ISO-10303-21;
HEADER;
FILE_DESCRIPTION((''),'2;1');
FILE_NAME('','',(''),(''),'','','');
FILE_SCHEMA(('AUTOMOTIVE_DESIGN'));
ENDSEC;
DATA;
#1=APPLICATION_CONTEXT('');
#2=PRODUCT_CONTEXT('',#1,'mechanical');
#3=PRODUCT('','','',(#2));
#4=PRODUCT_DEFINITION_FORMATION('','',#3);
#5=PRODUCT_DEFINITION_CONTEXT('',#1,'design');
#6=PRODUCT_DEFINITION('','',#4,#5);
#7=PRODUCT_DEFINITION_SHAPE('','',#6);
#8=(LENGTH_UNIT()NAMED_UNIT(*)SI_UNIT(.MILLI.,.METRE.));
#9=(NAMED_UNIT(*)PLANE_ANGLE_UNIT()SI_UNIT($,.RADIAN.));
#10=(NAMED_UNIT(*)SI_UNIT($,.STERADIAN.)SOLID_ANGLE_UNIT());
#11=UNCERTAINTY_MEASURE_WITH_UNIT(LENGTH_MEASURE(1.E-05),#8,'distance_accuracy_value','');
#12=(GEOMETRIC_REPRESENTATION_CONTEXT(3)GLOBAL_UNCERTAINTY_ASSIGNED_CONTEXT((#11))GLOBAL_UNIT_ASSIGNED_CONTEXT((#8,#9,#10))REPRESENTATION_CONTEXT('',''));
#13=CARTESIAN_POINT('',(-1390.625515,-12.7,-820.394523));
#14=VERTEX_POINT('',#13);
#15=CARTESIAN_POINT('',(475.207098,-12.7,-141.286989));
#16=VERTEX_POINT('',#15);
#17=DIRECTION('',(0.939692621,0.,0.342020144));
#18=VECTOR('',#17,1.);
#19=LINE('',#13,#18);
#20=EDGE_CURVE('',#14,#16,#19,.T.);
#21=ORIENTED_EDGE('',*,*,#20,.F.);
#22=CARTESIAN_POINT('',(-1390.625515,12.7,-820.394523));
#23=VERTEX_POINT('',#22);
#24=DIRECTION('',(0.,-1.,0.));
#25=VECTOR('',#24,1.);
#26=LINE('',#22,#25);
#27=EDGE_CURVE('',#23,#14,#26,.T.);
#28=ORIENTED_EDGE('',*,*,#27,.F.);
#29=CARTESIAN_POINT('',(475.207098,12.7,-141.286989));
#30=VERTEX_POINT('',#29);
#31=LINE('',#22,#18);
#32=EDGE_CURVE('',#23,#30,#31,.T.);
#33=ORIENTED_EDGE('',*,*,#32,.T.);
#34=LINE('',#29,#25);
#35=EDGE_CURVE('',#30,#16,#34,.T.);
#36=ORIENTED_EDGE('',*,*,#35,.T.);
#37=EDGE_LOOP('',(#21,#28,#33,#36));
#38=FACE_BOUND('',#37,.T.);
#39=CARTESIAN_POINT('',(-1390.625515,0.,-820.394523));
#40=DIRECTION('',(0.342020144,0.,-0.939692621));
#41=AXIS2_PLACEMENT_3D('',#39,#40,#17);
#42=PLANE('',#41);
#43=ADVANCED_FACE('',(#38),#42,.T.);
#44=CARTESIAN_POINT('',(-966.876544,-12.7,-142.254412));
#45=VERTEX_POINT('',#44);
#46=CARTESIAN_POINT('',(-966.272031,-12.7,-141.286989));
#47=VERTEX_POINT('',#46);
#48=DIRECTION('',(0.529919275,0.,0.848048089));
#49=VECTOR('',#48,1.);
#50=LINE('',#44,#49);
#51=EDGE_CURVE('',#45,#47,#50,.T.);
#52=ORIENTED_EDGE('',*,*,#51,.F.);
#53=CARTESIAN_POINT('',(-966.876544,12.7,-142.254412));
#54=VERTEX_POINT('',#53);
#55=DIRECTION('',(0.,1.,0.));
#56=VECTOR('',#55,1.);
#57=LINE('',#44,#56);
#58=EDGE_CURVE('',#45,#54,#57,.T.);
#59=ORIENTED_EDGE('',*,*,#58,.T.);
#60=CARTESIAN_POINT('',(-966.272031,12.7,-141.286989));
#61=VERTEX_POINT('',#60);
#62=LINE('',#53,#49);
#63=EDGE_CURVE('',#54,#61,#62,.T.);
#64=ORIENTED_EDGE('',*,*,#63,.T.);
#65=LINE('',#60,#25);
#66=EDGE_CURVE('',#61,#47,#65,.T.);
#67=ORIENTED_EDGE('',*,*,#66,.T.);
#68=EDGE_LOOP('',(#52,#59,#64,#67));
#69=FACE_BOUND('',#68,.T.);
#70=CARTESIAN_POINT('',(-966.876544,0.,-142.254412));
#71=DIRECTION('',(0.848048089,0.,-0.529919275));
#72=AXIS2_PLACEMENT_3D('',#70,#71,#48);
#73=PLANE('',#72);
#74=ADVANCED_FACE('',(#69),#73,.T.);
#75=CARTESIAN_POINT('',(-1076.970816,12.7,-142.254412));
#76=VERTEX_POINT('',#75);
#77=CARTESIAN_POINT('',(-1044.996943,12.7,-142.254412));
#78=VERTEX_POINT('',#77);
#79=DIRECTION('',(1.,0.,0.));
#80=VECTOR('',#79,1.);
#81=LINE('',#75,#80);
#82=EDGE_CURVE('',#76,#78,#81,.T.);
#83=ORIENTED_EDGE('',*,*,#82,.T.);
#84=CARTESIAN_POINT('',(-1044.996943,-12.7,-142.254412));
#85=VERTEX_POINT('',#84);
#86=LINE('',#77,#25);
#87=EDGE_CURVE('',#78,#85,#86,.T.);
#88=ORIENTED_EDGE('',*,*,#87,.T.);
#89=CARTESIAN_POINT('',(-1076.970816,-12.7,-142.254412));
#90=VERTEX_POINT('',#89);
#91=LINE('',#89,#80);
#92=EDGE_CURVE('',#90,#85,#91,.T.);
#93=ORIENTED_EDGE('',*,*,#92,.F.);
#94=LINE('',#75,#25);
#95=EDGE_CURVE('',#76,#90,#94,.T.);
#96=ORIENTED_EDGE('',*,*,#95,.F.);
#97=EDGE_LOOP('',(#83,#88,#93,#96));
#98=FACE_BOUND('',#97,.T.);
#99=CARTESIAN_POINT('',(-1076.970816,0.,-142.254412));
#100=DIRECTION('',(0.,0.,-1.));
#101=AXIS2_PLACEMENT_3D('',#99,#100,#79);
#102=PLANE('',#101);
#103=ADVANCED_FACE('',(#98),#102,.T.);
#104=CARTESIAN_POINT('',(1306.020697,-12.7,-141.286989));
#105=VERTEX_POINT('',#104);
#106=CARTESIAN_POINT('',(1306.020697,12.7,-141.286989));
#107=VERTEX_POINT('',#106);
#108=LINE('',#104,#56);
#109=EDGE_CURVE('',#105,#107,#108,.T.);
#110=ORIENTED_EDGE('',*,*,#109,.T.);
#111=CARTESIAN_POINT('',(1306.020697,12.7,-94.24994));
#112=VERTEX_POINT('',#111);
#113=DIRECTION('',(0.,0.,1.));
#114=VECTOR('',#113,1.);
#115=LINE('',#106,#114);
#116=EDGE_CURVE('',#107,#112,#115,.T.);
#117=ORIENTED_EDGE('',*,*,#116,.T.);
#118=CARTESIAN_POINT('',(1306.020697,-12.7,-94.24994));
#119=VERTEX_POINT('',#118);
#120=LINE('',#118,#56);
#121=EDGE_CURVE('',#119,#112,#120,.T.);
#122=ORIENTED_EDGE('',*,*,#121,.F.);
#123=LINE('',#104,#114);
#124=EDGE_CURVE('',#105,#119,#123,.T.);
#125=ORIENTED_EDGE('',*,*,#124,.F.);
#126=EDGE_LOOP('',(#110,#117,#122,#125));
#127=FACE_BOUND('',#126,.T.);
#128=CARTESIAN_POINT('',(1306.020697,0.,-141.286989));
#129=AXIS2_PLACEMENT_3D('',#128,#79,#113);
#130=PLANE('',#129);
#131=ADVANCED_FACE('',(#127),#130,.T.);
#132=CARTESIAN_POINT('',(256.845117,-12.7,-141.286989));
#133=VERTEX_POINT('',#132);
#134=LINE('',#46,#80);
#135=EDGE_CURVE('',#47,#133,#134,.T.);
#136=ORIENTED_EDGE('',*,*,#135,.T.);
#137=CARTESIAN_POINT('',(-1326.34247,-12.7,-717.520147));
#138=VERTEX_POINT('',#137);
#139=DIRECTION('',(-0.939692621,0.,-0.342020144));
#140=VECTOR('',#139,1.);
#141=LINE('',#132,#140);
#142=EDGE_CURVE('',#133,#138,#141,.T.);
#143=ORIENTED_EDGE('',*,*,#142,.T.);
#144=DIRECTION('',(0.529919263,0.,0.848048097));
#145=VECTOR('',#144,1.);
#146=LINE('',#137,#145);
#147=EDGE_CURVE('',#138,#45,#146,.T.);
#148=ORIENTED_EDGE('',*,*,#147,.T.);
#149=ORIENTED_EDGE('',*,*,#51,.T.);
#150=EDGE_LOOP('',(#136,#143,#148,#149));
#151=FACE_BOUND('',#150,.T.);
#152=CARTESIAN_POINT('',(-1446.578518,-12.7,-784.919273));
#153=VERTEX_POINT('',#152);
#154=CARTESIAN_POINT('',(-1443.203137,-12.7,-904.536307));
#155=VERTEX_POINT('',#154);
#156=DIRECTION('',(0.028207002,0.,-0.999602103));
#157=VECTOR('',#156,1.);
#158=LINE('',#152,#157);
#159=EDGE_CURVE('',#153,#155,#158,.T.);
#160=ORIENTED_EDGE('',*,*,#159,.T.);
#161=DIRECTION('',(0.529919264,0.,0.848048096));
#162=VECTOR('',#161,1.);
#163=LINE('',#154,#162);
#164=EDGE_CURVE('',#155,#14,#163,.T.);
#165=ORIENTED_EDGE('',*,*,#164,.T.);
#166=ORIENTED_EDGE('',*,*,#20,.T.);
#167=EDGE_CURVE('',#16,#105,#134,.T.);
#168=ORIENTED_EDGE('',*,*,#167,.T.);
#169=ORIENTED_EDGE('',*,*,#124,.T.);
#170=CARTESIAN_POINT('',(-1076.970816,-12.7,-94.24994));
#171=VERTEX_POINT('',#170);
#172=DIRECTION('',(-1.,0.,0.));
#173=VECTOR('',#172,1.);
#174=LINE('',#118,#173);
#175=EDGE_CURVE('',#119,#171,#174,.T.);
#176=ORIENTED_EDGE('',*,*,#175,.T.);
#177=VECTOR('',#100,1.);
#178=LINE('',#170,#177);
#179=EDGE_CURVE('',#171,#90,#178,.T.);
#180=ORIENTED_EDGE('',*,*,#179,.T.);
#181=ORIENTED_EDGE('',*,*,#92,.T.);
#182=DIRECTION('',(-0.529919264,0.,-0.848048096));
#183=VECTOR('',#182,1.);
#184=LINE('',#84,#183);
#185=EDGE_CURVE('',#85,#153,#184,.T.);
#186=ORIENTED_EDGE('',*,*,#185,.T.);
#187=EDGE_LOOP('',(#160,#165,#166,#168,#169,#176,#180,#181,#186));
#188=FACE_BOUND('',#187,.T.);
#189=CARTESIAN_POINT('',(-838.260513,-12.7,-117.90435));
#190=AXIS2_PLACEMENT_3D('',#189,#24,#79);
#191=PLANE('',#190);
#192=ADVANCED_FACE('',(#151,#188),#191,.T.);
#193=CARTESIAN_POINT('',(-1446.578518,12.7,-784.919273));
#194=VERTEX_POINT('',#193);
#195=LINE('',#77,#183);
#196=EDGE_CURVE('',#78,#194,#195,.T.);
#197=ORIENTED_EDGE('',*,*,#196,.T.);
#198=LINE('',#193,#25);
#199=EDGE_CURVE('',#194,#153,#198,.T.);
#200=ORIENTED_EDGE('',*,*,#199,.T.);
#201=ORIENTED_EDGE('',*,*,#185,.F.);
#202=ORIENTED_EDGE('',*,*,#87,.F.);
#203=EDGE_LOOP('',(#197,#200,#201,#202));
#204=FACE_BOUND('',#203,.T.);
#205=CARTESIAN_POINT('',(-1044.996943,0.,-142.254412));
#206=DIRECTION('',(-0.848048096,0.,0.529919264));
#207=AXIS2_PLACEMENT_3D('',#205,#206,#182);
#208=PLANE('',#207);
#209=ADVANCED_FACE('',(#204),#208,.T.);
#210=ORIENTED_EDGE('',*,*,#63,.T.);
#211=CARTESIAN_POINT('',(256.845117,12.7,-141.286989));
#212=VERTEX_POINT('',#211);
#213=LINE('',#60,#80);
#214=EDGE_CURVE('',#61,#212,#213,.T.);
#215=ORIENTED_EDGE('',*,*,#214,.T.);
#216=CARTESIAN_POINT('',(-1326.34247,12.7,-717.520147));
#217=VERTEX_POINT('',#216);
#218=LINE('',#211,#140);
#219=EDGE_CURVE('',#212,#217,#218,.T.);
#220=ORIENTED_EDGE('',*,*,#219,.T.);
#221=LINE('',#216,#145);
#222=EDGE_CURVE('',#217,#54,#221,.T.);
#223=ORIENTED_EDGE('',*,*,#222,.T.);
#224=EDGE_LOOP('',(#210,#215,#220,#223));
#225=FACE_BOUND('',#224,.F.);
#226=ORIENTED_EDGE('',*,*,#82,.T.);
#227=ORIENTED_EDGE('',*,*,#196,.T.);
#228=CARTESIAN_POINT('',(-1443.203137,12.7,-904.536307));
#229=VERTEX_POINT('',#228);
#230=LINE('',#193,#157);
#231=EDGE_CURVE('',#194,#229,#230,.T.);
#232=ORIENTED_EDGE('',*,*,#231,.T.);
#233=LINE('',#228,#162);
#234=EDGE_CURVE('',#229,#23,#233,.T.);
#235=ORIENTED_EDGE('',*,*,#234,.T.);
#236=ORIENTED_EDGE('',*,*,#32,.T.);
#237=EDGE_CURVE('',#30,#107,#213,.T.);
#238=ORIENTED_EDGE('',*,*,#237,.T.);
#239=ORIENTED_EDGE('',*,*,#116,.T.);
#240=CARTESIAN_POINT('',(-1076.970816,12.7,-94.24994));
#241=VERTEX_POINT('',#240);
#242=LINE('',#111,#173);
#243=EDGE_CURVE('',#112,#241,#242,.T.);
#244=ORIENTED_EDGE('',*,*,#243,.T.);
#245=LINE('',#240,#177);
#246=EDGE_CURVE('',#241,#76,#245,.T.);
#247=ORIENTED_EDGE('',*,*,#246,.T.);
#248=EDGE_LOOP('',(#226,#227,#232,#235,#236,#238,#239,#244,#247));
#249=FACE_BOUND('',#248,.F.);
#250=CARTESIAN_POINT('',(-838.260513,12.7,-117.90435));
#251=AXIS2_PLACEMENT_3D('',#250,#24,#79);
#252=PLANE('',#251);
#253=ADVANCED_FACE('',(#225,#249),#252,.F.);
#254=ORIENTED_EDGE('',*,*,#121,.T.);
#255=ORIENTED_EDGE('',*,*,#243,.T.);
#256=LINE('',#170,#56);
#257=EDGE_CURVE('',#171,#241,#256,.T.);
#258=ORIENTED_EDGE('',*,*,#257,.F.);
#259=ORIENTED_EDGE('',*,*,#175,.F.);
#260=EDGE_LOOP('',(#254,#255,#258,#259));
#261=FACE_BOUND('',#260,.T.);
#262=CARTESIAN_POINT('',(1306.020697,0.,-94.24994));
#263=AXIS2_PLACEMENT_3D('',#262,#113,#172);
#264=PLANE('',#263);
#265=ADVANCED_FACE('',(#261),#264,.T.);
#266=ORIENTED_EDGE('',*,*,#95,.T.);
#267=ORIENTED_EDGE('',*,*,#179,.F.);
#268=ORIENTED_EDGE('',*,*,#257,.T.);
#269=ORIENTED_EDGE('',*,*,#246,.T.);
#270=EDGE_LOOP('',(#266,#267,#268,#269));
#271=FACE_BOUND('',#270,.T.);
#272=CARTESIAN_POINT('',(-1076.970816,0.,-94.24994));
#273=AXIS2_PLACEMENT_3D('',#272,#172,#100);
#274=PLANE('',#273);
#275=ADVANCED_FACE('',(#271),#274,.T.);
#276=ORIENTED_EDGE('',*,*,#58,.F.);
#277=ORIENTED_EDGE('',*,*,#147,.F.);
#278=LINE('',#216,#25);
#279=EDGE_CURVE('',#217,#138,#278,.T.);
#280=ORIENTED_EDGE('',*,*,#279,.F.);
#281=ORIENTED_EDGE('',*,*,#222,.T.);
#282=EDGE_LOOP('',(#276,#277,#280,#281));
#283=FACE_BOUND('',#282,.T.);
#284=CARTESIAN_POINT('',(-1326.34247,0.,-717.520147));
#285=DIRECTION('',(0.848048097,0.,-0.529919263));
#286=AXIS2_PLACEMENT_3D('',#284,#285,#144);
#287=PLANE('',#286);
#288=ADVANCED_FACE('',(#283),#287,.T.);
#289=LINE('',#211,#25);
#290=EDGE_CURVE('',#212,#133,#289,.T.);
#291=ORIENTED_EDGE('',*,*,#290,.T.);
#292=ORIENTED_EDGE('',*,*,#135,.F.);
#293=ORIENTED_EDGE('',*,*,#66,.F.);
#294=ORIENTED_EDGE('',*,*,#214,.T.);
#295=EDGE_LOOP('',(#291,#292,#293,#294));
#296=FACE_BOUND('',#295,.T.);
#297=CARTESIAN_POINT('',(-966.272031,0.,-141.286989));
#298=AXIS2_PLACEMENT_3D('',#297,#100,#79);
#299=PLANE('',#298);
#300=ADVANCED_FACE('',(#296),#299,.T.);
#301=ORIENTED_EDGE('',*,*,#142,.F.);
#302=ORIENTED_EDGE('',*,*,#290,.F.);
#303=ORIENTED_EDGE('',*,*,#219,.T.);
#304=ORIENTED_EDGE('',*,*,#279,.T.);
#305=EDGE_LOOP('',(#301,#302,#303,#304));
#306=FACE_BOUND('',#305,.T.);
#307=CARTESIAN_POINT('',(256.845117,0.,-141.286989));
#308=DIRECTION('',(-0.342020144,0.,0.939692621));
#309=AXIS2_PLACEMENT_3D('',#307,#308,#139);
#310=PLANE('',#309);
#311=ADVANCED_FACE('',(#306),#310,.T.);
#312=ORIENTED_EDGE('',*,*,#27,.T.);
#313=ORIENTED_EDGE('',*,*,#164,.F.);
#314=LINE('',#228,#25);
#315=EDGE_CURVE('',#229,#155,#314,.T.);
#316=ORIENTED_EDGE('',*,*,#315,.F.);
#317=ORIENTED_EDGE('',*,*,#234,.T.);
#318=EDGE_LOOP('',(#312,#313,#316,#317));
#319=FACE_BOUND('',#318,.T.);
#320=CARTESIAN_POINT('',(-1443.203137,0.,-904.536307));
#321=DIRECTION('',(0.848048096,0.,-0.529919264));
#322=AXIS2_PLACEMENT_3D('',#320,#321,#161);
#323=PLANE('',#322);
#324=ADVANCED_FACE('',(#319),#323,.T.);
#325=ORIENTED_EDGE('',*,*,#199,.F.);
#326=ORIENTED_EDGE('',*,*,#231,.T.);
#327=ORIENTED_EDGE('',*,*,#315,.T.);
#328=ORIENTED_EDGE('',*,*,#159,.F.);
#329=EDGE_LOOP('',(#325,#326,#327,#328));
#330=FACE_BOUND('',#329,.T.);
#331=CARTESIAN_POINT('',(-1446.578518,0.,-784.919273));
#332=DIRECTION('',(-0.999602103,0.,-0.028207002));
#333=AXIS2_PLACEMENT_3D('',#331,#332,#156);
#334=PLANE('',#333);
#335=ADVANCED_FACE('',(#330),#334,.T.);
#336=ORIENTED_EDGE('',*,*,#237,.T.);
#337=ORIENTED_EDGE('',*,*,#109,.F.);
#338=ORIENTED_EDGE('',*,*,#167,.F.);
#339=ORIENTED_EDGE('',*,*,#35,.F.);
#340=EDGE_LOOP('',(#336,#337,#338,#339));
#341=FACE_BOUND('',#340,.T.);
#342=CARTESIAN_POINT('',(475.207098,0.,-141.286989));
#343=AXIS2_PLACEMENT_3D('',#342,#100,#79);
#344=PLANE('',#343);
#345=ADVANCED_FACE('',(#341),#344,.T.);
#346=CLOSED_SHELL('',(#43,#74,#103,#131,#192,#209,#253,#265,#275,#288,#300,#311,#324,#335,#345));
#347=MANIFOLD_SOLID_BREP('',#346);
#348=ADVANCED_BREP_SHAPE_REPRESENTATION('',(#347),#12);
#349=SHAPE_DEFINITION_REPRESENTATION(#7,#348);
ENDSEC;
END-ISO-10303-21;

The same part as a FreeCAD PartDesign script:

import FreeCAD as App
import Part
import Sketcher
from FreeCAD import Vector
Q = App.Units.Quantity

doc = App.newDocument("Part")
body = doc.addObject("PartDesign::Body", "Body")

# Sketch on XZ plane
sketch1 = body.newObject("Sketcher::SketchObject", "Sketch")
sketch1.AttachmentSupport = (doc.getObject("XZ_Plane"), [""])
sketch1.MapMode = "FlatFace"
sketch1.addGeometry([
    Part.LineSegment(Vector(-1076.970816, -94.24994, 0), Vector(-1076.970816, -142.254412, 0)),  # 0
    Part.LineSegment(Vector(-1076.970816, -142.254412, 0), Vector(-1044.996943, -142.254412, 0)),  # 1
    Part.LineSegment(Vector(-1044.996943, -142.254412, 0), Vector(-1446.578518, -784.919273, 0)),  # 2
    Part.LineSegment(Vector(-1446.578518, -784.919273, 0), Vector(-1443.203137, -904.536307, 0)),  # 3
    Part.LineSegment(Vector(-1443.203137, -904.536307, 0), Vector(-1390.625515, -820.394523, 0)),  # 4
    Part.LineSegment(Vector(-1390.625515, -820.394523, 0), Vector(475.207098, -141.286989, 0)),  # 5
    Part.LineSegment(Vector(475.207098, -141.286989, 0), Vector(1306.020697, -141.286989, 0)),  # 6
    Part.LineSegment(Vector(1306.020697, -141.286989, 0), Vector(1306.020697, -94.24994, 0)),  # 7
    Part.LineSegment(Vector(1306.020697, -94.24994, 0), Vector(-1076.970816, -94.24994, 0)),  # 8
    Part.LineSegment(Vector(-966.876544, -142.254412, 0), Vector(-966.272031, -141.286989, 0)),  # 9
    Part.LineSegment(Vector(-966.272031, -141.286989, 0), Vector(256.845117, -141.286989, 0)),  # 10
    Part.LineSegment(Vector(256.845117, -141.286989, 0), Vector(-1326.34247, -717.520147, 0)),  # 11
    Part.LineSegment(Vector(-1326.34247, -717.520147, 0), Vector(-966.876544, -142.254412, 0)),  # 12
], False)
sketch1.addConstraint([
    Sketcher.Constraint("Coincident", 0, 2, 1, 1),
    Sketcher.Constraint("Coincident", 1, 2, 2, 1),
    Sketcher.Constraint("Coincident", 2, 2, 3, 1),
    Sketcher.Constraint("Coincident", 3, 2, 4, 1),
    Sketcher.Constraint("Coincident", 4, 2, 5, 1),
    Sketcher.Constraint("Coincident", 5, 2, 6, 1),
    Sketcher.Constraint("Coincident", 6, 2, 7, 1),
    Sketcher.Constraint("Coincident", 7, 2, 8, 1),
    Sketcher.Constraint("Coincident", 8, 2, 0, 1),
    Sketcher.Constraint("Coincident", 9, 2, 10, 1),
    Sketcher.Constraint("Coincident", 10, 2, 11, 1),
    Sketcher.Constraint("Coincident", 11, 2, 12, 1),
    Sketcher.Constraint("Coincident", 12, 2, 9, 1),
    Sketcher.Constraint("Vertical", 0),
    Sketcher.Constraint("Horizontal", 1),
    Sketcher.Constraint("Horizontal", 6),
    Sketcher.Constraint("Vertical", 7),
    Sketcher.Constraint("Horizontal", 8),
    Sketcher.Constraint("Horizontal", 10),
    Sketcher.Constraint("Parallel", 2, 4),
    Sketcher.Constraint("Parallel", 4, 9),
    Sketcher.Constraint("Parallel", 5, 11),
    Sketcher.Constraint("Parallel", 4, 12),
    Sketcher.Constraint("Horizontal", 6, 2, 9, 2),
    Sketcher.Constraint("Horizontal", 1, 2, 12, 2),
    Sketcher.Constraint("Angle", 2, Q("-122 deg")),
    Sketcher.Constraint("Angle", 5, Q("20 deg")),
    Sketcher.Constraint("DistanceX", 6, 1, 6, 2, Q("830.813599 mm")),
    Sketcher.Constraint("DistanceX", 10, 1, 10, 2, Q("1223.117148 mm")),
    Sketcher.Constraint("DistanceY", 7, 1, 7, 2, Q("47.037049 mm")),
    Sketcher.Constraint("DistanceX", 2, 2, 0, 2, Q("369.607702 mm")),
    Sketcher.Constraint("DistanceX", 4, 2, 0, 2, Q("313.654699 mm")),
    Sketcher.Constraint("DistanceX", 1, 2, 12, 2, Q("78.120399 mm")),
    Sketcher.Constraint("Distance", 3, Q("119.664648 mm")),
    Sketcher.Constraint("Distance", 12, Q("678.34093 mm")),
    Sketcher.Constraint("DistanceX", 1, 1, 1, 2, Q("31.973873 mm")),
    Sketcher.Constraint("DistanceX", 8, 2, 8, 1, Q("2382.991513 mm")),
    Sketcher.Constraint("DistanceY", 0, 2, -1, 1, Q("142.254412 mm")),
    Sketcher.Constraint("DistanceX", 2, 2, -1, 1, Q("1446.578518 mm")),
])
pad1 = body.newObject("PartDesign::Pad", "Pad")
pad1.Profile = sketch1
pad1.Length = Q("1 in")
pad1.Midplane = True

doc.recompute()
